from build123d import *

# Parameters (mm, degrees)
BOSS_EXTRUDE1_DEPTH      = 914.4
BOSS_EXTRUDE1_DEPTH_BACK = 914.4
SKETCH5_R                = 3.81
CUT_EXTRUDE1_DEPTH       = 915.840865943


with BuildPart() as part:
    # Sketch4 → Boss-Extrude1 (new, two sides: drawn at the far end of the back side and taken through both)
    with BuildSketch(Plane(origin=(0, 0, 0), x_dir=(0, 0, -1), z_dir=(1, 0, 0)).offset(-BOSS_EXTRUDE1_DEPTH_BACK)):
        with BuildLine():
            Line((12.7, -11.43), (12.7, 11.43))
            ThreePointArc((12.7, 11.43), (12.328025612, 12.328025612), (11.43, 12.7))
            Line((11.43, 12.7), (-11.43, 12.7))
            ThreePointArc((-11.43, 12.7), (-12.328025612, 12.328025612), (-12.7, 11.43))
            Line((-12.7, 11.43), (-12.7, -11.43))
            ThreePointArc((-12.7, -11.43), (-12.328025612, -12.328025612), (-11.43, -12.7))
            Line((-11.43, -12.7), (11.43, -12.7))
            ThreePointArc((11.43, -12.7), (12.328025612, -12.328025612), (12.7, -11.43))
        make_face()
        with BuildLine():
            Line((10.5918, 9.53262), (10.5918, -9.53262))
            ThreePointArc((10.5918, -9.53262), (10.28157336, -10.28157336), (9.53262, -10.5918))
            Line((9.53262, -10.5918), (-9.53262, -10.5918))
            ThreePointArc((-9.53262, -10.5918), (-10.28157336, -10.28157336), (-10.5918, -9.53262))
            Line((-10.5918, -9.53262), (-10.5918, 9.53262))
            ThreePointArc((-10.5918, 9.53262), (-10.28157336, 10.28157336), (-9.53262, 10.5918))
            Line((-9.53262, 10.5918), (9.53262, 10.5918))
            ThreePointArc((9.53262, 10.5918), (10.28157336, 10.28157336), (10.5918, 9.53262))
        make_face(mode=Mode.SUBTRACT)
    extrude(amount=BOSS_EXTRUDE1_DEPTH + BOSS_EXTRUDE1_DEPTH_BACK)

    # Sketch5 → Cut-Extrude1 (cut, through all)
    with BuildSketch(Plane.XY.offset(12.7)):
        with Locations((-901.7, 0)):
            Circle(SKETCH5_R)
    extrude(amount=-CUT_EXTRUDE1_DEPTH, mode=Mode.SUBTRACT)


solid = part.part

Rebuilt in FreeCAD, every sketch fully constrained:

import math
import FreeCAD as App
import Part
import Sketcher
Q = App.Units.Quantity

doc = App.newDocument("Part")
params = doc.addObject("Spreadsheet::Sheet", "Params")
for row, (alias, value) in enumerate([
    ("sketch1_radius", "0.05 in"),
    ("sketch1_width", "0.9 in"),
    ("pad1_length", "36 in"),
    ("pad1_length2", "36 in"),
    ("sketch2_diameter", "0.3 in"),
], start=1):
    params.set(f"A{row}", alias)
    params.set(f"B{row}", "=" + value)
    params.setAlias(f"B{row}", alias)

body = doc.addObject("PartDesign::Body", "Body")

sketch1 = body.newObject("Sketcher::SketchObject", "Sketch")
sketch1.AttachmentSupport = (doc.getObject("YZ_Plane"), [""])
sketch1.MapMode = "FlatFace"
sketch1.addGeometry(Part.LineSegment(App.Vector(-11.4, -12.7, 0), App.Vector(11.4, -12.7, 0)), False)
sketch1.addGeometry(Part.ArcOfCircle(Part.Circle(App.Vector(11.4, -11.4, 0), App.Vector(0, 0, 1), 1.3), math.radians(-90), math.radians(0)), False)
sketch1.addGeometry(Part.LineSegment(App.Vector(12.7, -11.4, 0), App.Vector(12.7, 11.4, 0)), False)
sketch1.addGeometry(Part.ArcOfCircle(Part.Circle(App.Vector(11.4, 11.4, 0), App.Vector(0, 0, 1), 1.3), math.radians(0), math.radians(90)), False)
sketch1.addGeometry(Part.LineSegment(App.Vector(11.4, 12.7, 0), App.Vector(-11.4, 12.7, 0)), False)
sketch1.addGeometry(Part.ArcOfCircle(Part.Circle(App.Vector(-11.4, 11.4, 0), App.Vector(0, 0, 1), 1.3), math.radians(90), math.radians(180)), False)
sketch1.addGeometry(Part.LineSegment(App.Vector(-12.7, 11.4, 0), App.Vector(-12.7, -11.4, 0)), False)
sketch1.addGeometry(Part.ArcOfCircle(Part.Circle(App.Vector(-11.4, -11.4, 0), App.Vector(0, 0, 1), 1.3), math.radians(180), math.radians(270)), False)
sketch1.addGeometry(Part.ArcOfCircle(Part.Circle(App.Vector(9.5, -9.5, 0), App.Vector(0, 0, 1), 1.1), math.radians(-90), math.radians(0)), False)
sketch1.addGeometry(Part.LineSegment(App.Vector(9.5, -10.6, 0), App.Vector(-9.5, -10.6, 0)), False)
sketch1.addGeometry(Part.ArcOfCircle(Part.Circle(App.Vector(-9.5, -9.5, 0), App.Vector(0, 0, 1), 1.1), math.radians(-180), math.radians(-90)), False)
sketch1.addGeometry(Part.LineSegment(App.Vector(-10.6, -9.5, 0), App.Vector(-10.6, 9.5, 0)), False)
sketch1.addGeometry(Part.ArcOfCircle(Part.Circle(App.Vector(-9.5, 9.5, 0), App.Vector(0, 0, 1), 1.1), math.radians(90), math.radians(180)), False)
sketch1.addGeometry(Part.LineSegment(App.Vector(-9.5, 10.6, 0), App.Vector(9.5, 10.6, 0)), False)
sketch1.addGeometry(Part.ArcOfCircle(Part.Circle(App.Vector(9.5, 9.5, 0), App.Vector(0, 0, 1), 1.1), math.radians(0), math.radians(90)), False)
sketch1.addGeometry(Part.LineSegment(App.Vector(10.6, 9.5, 0), App.Vector(10.6, -9.5, 0)), False)
sketch1.addConstraint(Sketcher.Constraint("Tangent", 0, 2, 1, 1))
sketch1.addConstraint(Sketcher.Constraint("Tangent", 1, 2, 2, 1))
sketch1.addConstraint(Sketcher.Constraint("Tangent", 2, 2, 3, 1))
sketch1.addConstraint(Sketcher.Constraint("Tangent", 3, 2, 4, 1))
sketch1.addConstraint(Sketcher.Constraint("Tangent", 4, 2, 5, 1))
sketch1.addConstraint(Sketcher.Constraint("Tangent", 5, 2, 6, 1))
sketch1.addConstraint(Sketcher.Constraint("Tangent", 6, 2, 7, 1))
sketch1.addConstraint(Sketcher.Constraint("Tangent", 7, 2, 0, 1))
sketch1.addConstraint(Sketcher.Constraint("Tangent", 8, 1, 9, 1))
sketch1.addConstraint(Sketcher.Constraint("Tangent", 9, 2, 10, 2))
sketch1.addConstraint(Sketcher.Constraint("Tangent", 10, 1, 11, 1))
sketch1.addConstraint(Sketcher.Constraint("Tangent", 11, 2, 12, 2))
sketch1.addConstraint(Sketcher.Constraint("Tangent", 12, 1, 13, 1))
sketch1.addConstraint(Sketcher.Constraint("Tangent", 13, 2, 14, 2))
sketch1.addConstraint(Sketcher.Constraint("Tangent", 14, 1, 15, 1))
sketch1.addConstraint(Sketcher.Constraint("Tangent", 15, 2, 8, 2))
sketch1.addConstraint(Sketcher.Constraint("Horizontal", 0))
sketch1.addConstraint(Sketcher.Constraint("Vertical", 2))
sketch1.addConstraint(Sketcher.Constraint("Horizontal", 4))
sketch1.addConstraint(Sketcher.Constraint("Vertical", 6))
sketch1.addConstraint(Sketcher.Constraint("Horizontal", 9))
sketch1.addConstraint(Sketcher.Constraint("Vertical", 11))
sketch1.addConstraint(Sketcher.Constraint("Horizontal", 13))
sketch1.addConstraint(Sketcher.Constraint("Vertical", 15))
sketch1.addConstraint(Sketcher.Constraint("Equal", 1, 3))
sketch1.addConstraint(Sketcher.Constraint("Equal", 3, 5))
sketch1.addConstraint(Sketcher.Constraint("Equal", 5, 7))
sketch1.addConstraint(Sketcher.Constraint("Equal", 8, 10))
sketch1.addConstraint(Sketcher.Constraint("Equal", 10, 12))
sketch1.addConstraint(Sketcher.Constraint("Equal", 12, 14))
sketch1.addConstraint(Sketcher.Constraint("Symmetric", 1, 3, 5, 3, -1, 1))
sketch1.addConstraint(Sketcher.Constraint("Symmetric", 8, 3, 12, 3, -1, 1))
sketch1.addConstraint(Sketcher.Constraint("Equal", 4, 2))
sketch1.addConstraint(Sketcher.Constraint("Equal", 13, 11))
sketch1.addConstraint(Sketcher.Constraint("Radius", 1, Q("0.05 in")))
sketch1.addConstraint(Sketcher.Constraint("DistanceX", 0, 1, 0, 2, Q("0.9 in")))
sketch1.addConstraint(Sketcher.Constraint("Radius", 8, Q("0.0417 in")))
sketch1.addConstraint(Sketcher.Constraint("DistanceX", 9, 2, 9, 1, Q("0.7506 in")))
sketch1.setExpression("Constraints[34]", "Params.sketch1_radius")
sketch1.setExpression("Constraints[35]", "Params.sketch1_width")
pad1 = body.newObject("PartDesign::Pad", "Pad")
pad1.Profile = sketch1
pad1.Type = "TwoLengths"
pad1.setExpression("Length", "Params.pad1_length")
pad1.setExpression("Length2", "Params.pad1_length2")

sketch2 = body.newObject("Sketcher::SketchObject", "Sketch001")
sketch2.AttachmentSupport = (doc.getObject("XY_Plane"), [""])
sketch2.MapMode = "FlatFace"
sketch2.AttachmentOffset = App.Placement(App.Vector(0, 0, 0.5 * 25.4), App.Rotation())
sketch2.addGeometry(Part.Circle(App.Vector(-901.7, 0, 0), App.Vector(0, 0, 1), 3.8), False)
sketch2.addConstraint(Sketcher.Constraint("PointOnObject", 0, 3, -1))
sketch2.addConstraint(Sketcher.Constraint("Diameter", 0, Q("0.3 in")))
sketch2.addConstraint(Sketcher.Constraint("DistanceX", 0, 3, -1, 1, Q("35.5 in")))
sketch2.setExpression("Constraints[1]", "Params.sketch2_diameter")
pocket1 = body.newObject("PartDesign::Pocket", "Pocket")
pocket1.Profile = sketch2
pocket1.Type = "ThroughAll"

doc.recompute()
